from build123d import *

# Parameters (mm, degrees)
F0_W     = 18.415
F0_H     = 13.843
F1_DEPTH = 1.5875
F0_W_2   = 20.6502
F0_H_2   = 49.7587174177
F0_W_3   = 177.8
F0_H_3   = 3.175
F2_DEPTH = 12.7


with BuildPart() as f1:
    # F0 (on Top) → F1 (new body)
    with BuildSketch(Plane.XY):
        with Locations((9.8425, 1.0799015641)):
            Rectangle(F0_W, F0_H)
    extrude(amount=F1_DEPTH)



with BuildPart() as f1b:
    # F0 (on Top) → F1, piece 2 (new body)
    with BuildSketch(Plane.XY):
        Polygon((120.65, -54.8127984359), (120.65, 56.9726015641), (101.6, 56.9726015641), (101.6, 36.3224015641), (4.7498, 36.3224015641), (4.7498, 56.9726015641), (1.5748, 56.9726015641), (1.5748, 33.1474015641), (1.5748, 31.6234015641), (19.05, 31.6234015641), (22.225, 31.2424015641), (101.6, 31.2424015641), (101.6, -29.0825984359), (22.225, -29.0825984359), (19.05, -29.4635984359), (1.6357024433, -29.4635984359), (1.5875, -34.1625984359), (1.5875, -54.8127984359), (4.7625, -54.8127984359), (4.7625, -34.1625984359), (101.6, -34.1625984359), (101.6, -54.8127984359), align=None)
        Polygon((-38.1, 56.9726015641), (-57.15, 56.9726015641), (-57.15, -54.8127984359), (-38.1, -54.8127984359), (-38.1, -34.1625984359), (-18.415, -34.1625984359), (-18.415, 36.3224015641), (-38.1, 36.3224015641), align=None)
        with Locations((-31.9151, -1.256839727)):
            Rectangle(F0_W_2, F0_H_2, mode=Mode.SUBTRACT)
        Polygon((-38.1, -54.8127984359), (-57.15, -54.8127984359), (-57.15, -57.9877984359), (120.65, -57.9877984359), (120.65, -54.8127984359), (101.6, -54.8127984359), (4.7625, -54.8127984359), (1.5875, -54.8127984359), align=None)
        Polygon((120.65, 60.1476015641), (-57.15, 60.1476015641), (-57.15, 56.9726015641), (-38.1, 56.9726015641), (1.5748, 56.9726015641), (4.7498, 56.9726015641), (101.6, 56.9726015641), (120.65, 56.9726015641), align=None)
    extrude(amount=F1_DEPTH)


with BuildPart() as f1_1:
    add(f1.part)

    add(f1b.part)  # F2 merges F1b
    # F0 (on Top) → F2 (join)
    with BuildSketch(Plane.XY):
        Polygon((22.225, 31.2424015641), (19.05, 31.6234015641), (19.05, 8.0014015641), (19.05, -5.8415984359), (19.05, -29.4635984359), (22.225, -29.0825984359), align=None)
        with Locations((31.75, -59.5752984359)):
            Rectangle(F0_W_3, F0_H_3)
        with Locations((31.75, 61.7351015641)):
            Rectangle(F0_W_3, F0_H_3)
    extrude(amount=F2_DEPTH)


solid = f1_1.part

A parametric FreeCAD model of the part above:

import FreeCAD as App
import Part
import Sketcher

V = App.Vector
Q = App.Units.Quantity


def add_polygon(sketch, points):
    """Adds a closed chain of lines whose ends are joined by coincident constraints."""
    first, n = sketch.GeometryCount, len(points)
    for a, b in zip(points, points[1:] + points[:1]):
        sketch.addGeometry(Part.LineSegment(App.Vector(*a, 0), App.Vector(*b, 0)), False)
    for i in range(n):
        sketch.addConstraint(Sketcher.Constraint("Coincident", first + i, 2, first + (i + 1) % n, 1))

doc = App.newDocument("Part")
body = doc.addObject("PartDesign::Body", "Body")

# Sketch on XY plane
sketch1 = doc.addObject("Sketcher::SketchObject", "Sketch")
body.addObject(sketch1)
sketch1.AttachmentSupport = (doc.XY_Plane, [""])
sketch1.MapMode = "FlatFace"
add_polygon(sketch1, [(1, 8), (1, -6), (19, -6), (19, 8)])  # lines 0-3
sketch1.addConstraint(Sketcher.Constraint("Vertical", 0))
sketch1.addConstraint(Sketcher.Constraint("Horizontal", 1))
sketch1.addConstraint(Sketcher.Constraint("Vertical", 2))
sketch1.addConstraint(Sketcher.Constraint("Horizontal", 3))
sketch1.addConstraint(Sketcher.Constraint("DistanceX", 1, 1, 1, 2, Q("0.725 in")))
sketch1.addConstraint(Sketcher.Constraint("DistanceY", 0, 2, 0, 1, Q("0.545 in")))
sketch1.addConstraint(Sketcher.Constraint("DistanceX", -1, 1, 1, 2, Q("0.75 in")))
sketch1.addConstraint(Sketcher.Constraint("DistanceY", 0, 2, -1, 1, 5.841598))
pad1 = doc.addObject("PartDesign::Pad", "Pad")
body.addObject(pad1)
pad1.Profile = sketch1
pad1.Length = Q("0.0625 in")
body2 = doc.addObject("PartDesign::Body", "Body001")

# Sketch on XY plane
sketch2 = doc.addObject("Sketcher::SketchObject", "Sketch001")
body2.addObject(sketch2)
sketch2.AttachmentSupport = (doc.getObject("XY_Plane001"), [""])
sketch2.MapMode = "FlatFace"
add_polygon(sketch2, [(-57.1, -58), (120.7, -58), (120.7, 60.1), (-57.1, 60.1)])  # lines 0-3
add_polygon(sketch2, [(101.6, 57), (101.6, 36.3), (4.7, 36.3), (4.7, 57)])  # lines 4-7
add_polygon(sketch2, [(1.6, 57), (1.6, 31.6), (19.1, 31.6), (22.2, 31.2), (101.6, 31.2), (101.6, -29.1), (22.2, -29.1), (19.1, -29.5), (1.6, -29.5), (1.6, -34.2), (1.6, -54.8), (-38.1, -54.8), (-38.1, -34.2), (-18.4, -34.2), (-18.4, 36.3), (-38.1, 36.3), (-38.1, 57)])  # lines 8-24
add_polygon(sketch2, [(4.8, -54.8), (4.8, -34.2), (101.6, -34.2), (101.6, -54.8)])  # lines 25-28
add_polygon(sketch2, [(-42.2, -26.1), (-42.2, 23.6), (-21.6, 23.6), (-21.6, -26.1)])  # lines 29-32
sketch2.addConstraint(Sketcher.Constraint("Horizontal", 0))
sketch2.addConstraint(Sketcher.Constraint("Vertical", 1))
sketch2.addConstraint(Sketcher.Constraint("Horizontal", 2))
sketch2.addConstraint(Sketcher.Constraint("Vertical", 3))
sketch2.addConstraint(Sketcher.Constraint("Vertical", 4))
sketch2.addConstraint(Sketcher.Constraint("Horizontal", 5))
sketch2.addConstraint(Sketcher.Constraint("Vertical", 6))
sketch2.addConstraint(Sketcher.Constraint("Horizontal", 7))
sketch2.addConstraint(Sketcher.Constraint("Vertical", 8))
sketch2.addConstraint(Sketcher.Constraint("Horizontal", 9))
sketch2.addConstraint(Sketcher.Constraint("Horizontal", 11))
sketch2.addConstraint(Sketcher.Constraint("Vertical", 12))
sketch2.addConstraint(Sketcher.Constraint("Horizontal", 13))
sketch2.addConstraint(Sketcher.Constraint("Horizontal", 15))
sketch2.addConstraint(Sketcher.Constraint("Vertical", 17))
sketch2.addConstraint(Sketcher.Constraint("Horizontal", 18))
sketch2.addConstraint(Sketcher.Constraint("Vertical", 19))
sketch2.addConstraint(Sketcher.Constraint("Horizontal", 20))
sketch2.addConstraint(Sketcher.Constraint("Vertical", 21))
sketch2.addConstraint(Sketcher.Constraint("Horizontal", 22))
sketch2.addConstraint(Sketcher.Constraint("Vertical", 23))
sketch2.addConstraint(Sketcher.Constraint("Horizontal", 24))
sketch2.addConstraint(Sketcher.Constraint("Vertical", 25))
sketch2.addConstraint(Sketcher.Constraint("Horizontal", 26))
sketch2.addConstraint(Sketcher.Constraint("Vertical", 27))
sketch2.addConstraint(Sketcher.Constraint("Horizontal", 28))
sketch2.addConstraint(Sketcher.Constraint("Vertical", 29))
sketch2.addConstraint(Sketcher.Constraint("Horizontal", 30))
sketch2.addConstraint(Sketcher.Constraint("Vertical", 31))
sketch2.addConstraint(Sketcher.Constraint("Horizontal", 32))
sketch2.addConstraint(Sketcher.Constraint("Horizontal", 16, 2, 19, 2))
sketch2.addConstraint(Sketcher.Constraint("Horizontal", 5, 2, 21, 2))
sketch2.addConstraint(Sketcher.Constraint("Horizontal", 7, 2, 23, 2))
sketch2.addConstraint(Sketcher.Constraint("Horizontal", 20, 2, 25, 2))
sketch2.addConstraint(Sketcher.Constraint("Horizontal", 18, 2, 27, 2))
sketch2.addConstraint(Sketcher.Constraint("Vertical", 7, 2, 11, 2))
sketch2.addConstraint(Sketcher.Constraint("Vertical", 10, 2, 13, 2))
sketch2.addConstraint(Sketcher.Constraint("Vertical", 9, 2, 14, 2))
sketch2.addConstraint(Sketcher.Constraint("Vertical", 19, 2, 22, 2))
sketch2.addConstraint(Sketcher.Constraint("Vertical", 12, 2, 26, 2))
sketch2.addConstraint(Sketcher.Constraint("Equal", 32, 4))
sketch2.addConstraint(Sketcher.Constraint("Equal", 6, 17))
sketch2.addConstraint(Sketcher.Constraint("Equal", 10, 14))
sketch2.addConstraint(Sketcher.Constraint("DistanceX", 0, 1, 0, 2, Q("7 in")))
sketch2.addConstraint(Sketcher.Constraint("DistanceX", -1, 1, 4, 2, Q("4 in")))
sketch2.addConstraint(Sketcher.Constraint("DistanceX", 2, 2, 9, 2, Q("3 in")))
sketch2.addConstraint(Sketcher.Constraint("DistanceX", 18, 2, -1, 1, Q("1.5 in")))
sketch2.addConstraint(Sketcher.Constraint("DistanceY", 10, 2, 5, 2, Q("0.2 in")))
sketch2.addConstraint(Sketcher.Constraint("DistanceY", 16, 2, 13, 2, Q("0.2 in")))
sketch2.addConstraint(Sketcher.Constraint("DistanceX", 21, 2, 10, 2, Q("1.6 in")))
sketch2.addConstraint(Sketcher.Constraint("DistanceX", 5, 2, 5, 1, Q("3.813 in")))
sketch2.addConstraint(Sketcher.Constraint("DistanceX", 9, 1, 9, 2, Q("0.688 in")))
sketch2.addConstraint(Sketcher.Constraint("DistanceX", 11, 1, 11, 2, Q("3.125 in")))
sketch2.addConstraint(Sketcher.Constraint("DistanceX", 18, 2, 18, 1, Q("1.5625 in")))
sketch2.addConstraint(Sketcher.Constraint("DistanceX", 24, 1, 24, 2, Q("1.562 in")))
sketch2.addConstraint(Sketcher.Constraint("DistanceX", 26, 1, 26, 2, Q("3.8125 in")))
sketch2.addConstraint(Sketcher.Constraint("DistanceX", 30, 1, 30, 2, Q("0.813 in")))
sketch2.addConstraint(Sketcher.Constraint("DistanceY", 1, 1, 1, 2, Q("4.651 in")))
sketch2.addConstraint(Sketcher.Constraint("DistanceY", 8, 2, 8, 1, Q("0.998 in")))
sketch2.addConstraint(Sketcher.Constraint("DistanceY", 12, 2, 12, 1, Q("2.375 in")))
sketch2.addConstraint(Sketcher.Constraint("DistanceX", 30, 2, -1, 1, Q("0.85 in")))
sketch2.addConstraint(Sketcher.Constraint("DistanceY", 4, 2, 1, 2, Q("0.938 in")))
sketch2.addConstraint(Sketcher.Constraint("DistanceY", 20, 2, 31, 2, Q("0.316 in")))
sketch2.addConstraint(Sketcher.Constraint("DistanceY", 0, 2, -1, 1, 57.987798))
sketch2.addConstraint(Sketcher.Constraint("DistanceX", 15, 2, 15, 1, 17.414298))
sketch2.addConstraint(Sketcher.Constraint("DistanceY", 29, 1, 29, 2, 49.758717))
pad2 = doc.addObject("PartDesign::Pad", "Pad001")
body2.addObject(pad2)
pad2.Profile = sketch2
pad2.Length = Q("0.0625 in")
body.AllowCompound = True
doc.recompute()

boolean = doc.addObject("PartDesign::Boolean", "Boolean")
body.addObject(boolean)
boolean.Type = "Fuse"
boolean.addObjects([body2])

# Sketch on XY plane
sketch3 = doc.addObject("Sketcher::SketchObject", "Sketch002")
body.addObject(sketch3)
sketch3.AttachmentSupport = (doc.XY_Plane, [""])
sketch3.MapMode = "FlatFace"
add_polygon(sketch3, [(22.2, 31.2), (19.1, 31.6), (19.1, -29.5), (22.2, -29.1)])  # lines 0-3
add_polygon(sketch3, [(-57.1, -58), (-57.1, -61.2), (120.7, -61.2), (120.7, -58)])  # lines 4-7
add_polygon(sketch3, [(-57.1, 63.3), (-57.1, 60.1), (120.7, 60.1), (120.7, 63.3)])  # lines 8-11
sketch3.addConstraint(Sketcher.Constraint("Vertical", 1))
sketch3.addConstraint(Sketcher.Constraint("Vertical", 3))
sketch3.addConstraint(Sketcher.Constraint("Vertical", 4))
sketch3.addConstraint(Sketcher.Constraint("Horizontal", 5))
sketch3.addConstraint(Sketcher.Constraint("Vertical", 6))
sketch3.addConstraint(Sketcher.Constraint("Horizontal", 7))
sketch3.addConstraint(Sketcher.Constraint("Vertical", 8))
sketch3.addConstraint(Sketcher.Constraint("Horizontal", 9))
sketch3.addConstraint(Sketcher.Constraint("Vertical", 10))
sketch3.addConstraint(Sketcher.Constraint("Horizontal", 11))
sketch3.addConstraint(Sketcher.Constraint("Vertical", 7, 2, 8, 2))
sketch3.addConstraint(Sketcher.Constraint("Vertical", 6, 2, 9, 2))
sketch3.addConstraint(Sketcher.Constraint("Equal", 6, 8))
sketch3.addConstraint(Sketcher.Constraint("Equal", 0, 2))
sketch3.addConstraint(Sketcher.Constraint("DistanceX", 5, 1, 5, 2, Q("7 in")))
sketch3.addConstraint(Sketcher.Constraint("DistanceX", 4, 2, 1, 2, Q("3 in")))
sketch3.addConstraint(Sketcher.Constraint("DistanceY", 1, 2, 1, 1, Q("2.405 in")))
sketch3.addConstraint(Sketcher.Constraint("DistanceY", 3, 1, 3, 2, Q("2.375 in")))
sketch3.addConstraint(Sketcher.Constraint("DistanceY", 4, 2, 4, 1, Q("0.125 in")))
sketch3.addConstraint(Sketcher.Constraint("DistanceX", -1, 1, 0, 2, Q("0.75 in")))
sketch3.addConstraint(Sketcher.Constraint("DistanceX", -1, 1, 2, 2, Q("0.875 in")))
sketch3.addConstraint(Sketcher.Constraint("DistanceY", 4, 2, 1, 2, Q("1.248 in")))
sketch3.addConstraint(Sketcher.Constraint("DistanceY", 0, 2, 8, 2, Q("1.123 in")))
sketch3.addConstraint(Sketcher.Constraint("DistanceY", -1, 1, 0, 2, 31.623402))
pad3 = doc.addObject("PartDesign::Pad", "Pad002")
body.addObject(pad3)
pad3.Profile = sketch3
pad3.Length = Q("0.5 in")

doc.recompute()
